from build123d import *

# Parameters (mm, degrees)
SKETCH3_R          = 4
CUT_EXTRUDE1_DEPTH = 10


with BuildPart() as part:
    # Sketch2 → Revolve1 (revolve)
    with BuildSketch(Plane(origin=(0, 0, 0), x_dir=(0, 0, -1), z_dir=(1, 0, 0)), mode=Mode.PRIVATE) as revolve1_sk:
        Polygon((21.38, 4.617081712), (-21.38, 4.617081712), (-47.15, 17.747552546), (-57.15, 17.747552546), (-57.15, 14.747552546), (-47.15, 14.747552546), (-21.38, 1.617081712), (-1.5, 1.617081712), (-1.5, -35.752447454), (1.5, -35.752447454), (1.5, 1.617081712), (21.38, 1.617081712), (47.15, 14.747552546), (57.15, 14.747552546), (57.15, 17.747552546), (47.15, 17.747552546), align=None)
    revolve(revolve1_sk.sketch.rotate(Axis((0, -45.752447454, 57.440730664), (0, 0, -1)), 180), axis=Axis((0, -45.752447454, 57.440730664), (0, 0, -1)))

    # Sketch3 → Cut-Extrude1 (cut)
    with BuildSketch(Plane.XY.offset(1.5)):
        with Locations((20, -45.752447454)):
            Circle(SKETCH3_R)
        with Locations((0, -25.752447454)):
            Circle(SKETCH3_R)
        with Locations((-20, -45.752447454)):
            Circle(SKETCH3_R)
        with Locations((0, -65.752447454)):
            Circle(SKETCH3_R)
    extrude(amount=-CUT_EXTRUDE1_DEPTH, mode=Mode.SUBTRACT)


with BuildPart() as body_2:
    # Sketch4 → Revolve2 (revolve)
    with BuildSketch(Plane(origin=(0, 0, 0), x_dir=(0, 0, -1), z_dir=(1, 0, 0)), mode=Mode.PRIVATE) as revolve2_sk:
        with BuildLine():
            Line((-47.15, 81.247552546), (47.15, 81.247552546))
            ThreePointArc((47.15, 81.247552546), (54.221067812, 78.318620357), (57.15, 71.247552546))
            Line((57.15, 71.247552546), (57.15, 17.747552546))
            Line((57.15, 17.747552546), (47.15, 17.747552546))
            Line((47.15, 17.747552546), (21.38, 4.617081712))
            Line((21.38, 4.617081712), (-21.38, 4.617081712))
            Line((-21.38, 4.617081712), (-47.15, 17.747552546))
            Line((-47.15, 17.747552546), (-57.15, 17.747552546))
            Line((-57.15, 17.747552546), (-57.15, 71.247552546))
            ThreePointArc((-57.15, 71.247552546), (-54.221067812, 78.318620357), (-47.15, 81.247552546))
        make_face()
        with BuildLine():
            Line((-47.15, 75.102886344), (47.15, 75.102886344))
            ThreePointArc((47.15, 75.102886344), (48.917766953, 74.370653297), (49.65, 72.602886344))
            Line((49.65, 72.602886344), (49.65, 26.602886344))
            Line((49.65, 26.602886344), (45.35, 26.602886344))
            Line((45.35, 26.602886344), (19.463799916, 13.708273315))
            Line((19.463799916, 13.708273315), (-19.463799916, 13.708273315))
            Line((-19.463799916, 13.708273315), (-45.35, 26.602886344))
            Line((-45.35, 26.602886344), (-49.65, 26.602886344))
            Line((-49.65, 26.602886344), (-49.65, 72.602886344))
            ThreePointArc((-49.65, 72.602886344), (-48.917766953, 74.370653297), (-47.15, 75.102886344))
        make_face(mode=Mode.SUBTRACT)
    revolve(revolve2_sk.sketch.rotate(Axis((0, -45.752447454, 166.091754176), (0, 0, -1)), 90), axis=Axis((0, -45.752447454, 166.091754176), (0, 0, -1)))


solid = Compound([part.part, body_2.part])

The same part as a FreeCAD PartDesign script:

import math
import FreeCAD as App
import Part
import Sketcher

V = App.Vector
Q = App.Units.Quantity


def add_polygon(sketch, points):
    """Adds a closed chain of lines whose ends are joined by coincident constraints."""
    first, n = sketch.GeometryCount, len(points)
    for a, b in zip(points, points[1:] + points[:1]):
        sketch.addGeometry(Part.LineSegment(App.Vector(*a, 0), App.Vector(*b, 0)), False)
    for i in range(n):
        sketch.addConstraint(Sketcher.Constraint("Coincident", first + i, 2, first + (i + 1) % n, 1))

doc = App.newDocument("Part")
body = doc.addObject("PartDesign::Body", "Body")

# Sketch on YZ plane
sketch1 = body.newObject("Sketcher::SketchObject", "Sketch")
sketch1.AttachmentSupport = (doc.getObject("YZ_Plane"), [""])
sketch1.MapMode = "FlatFace"
add_polygon(sketch1, [(4.617082, -21.38), (4.617082, 21.38), (17.747553, 47.15), (17.747553, 57.15), (14.747553, 57.15), (14.747553, 47.15), (1.617082, 21.38), (1.617082, 1.5), (-35.752447, 1.5), (-35.752447, -1.5), (1.617082, -1.5), (1.617082, -21.38), (14.747553, -47.15), (14.747553, -57.15), (17.747553, -57.15), (17.747553, -47.15)])  # lines 0-15
sketch1.addGeometry(Part.LineSegment(V(-45.752447, 57.15, 0), V(-45.752447, -57.15, 0)), True)  # axis
sketch1.addConstraint(Sketcher.Constraint("Vertical", 0))
sketch1.addConstraint(Sketcher.Constraint("Vertical", 2))
sketch1.addConstraint(Sketcher.Constraint("Horizontal", 3))
sketch1.addConstraint(Sketcher.Constraint("Vertical", 4))
sketch1.addConstraint(Sketcher.Constraint("Vertical", 6))
sketch1.addConstraint(Sketcher.Constraint("Horizontal", 7))
sketch1.addConstraint(Sketcher.Constraint("Vertical", 8))
sketch1.addConstraint(Sketcher.Constraint("Horizontal", 9))
sketch1.addConstraint(Sketcher.Constraint("Vertical", 10))
sketch1.addConstraint(Sketcher.Constraint("Vertical", 12))
sketch1.addConstraint(Sketcher.Constraint("Horizontal", 13))
sketch1.addConstraint(Sketcher.Constraint("Vertical", 14))
sketch1.addConstraint(Sketcher.Constraint("Vertical", 16))
sketch1.addConstraint(Sketcher.Constraint("Symmetric", 6, 2, 9, 2, -1))
sketch1.addConstraint(Sketcher.Constraint("Symmetric", 4, 2, 11, 2, -1))
sketch1.addConstraint(Sketcher.Constraint("Symmetric", 2, 2, 13, 2, -1))
sketch1.addConstraint(Sketcher.Constraint("Parallel", 1, 5))
sketch1.addConstraint(Sketcher.Constraint("Parallel", 11, 15))
sketch1.addConstraint(Sketcher.Constraint("Horizontal", 1, 2, 4, 2))
sketch1.addConstraint(Sketcher.Constraint("Horizontal", 0, 2, 5, 2))
sketch1.addConstraint(Sketcher.Constraint("Horizontal", 11, 2, 14, 2))
sketch1.addConstraint(Sketcher.Constraint("Horizontal", 3, 2, 16, 1))
sketch1.addConstraint(Sketcher.Constraint("Horizontal", 13, 2, 16, 2))
sketch1.addConstraint(Sketcher.Constraint("Equal", 13, 8))
sketch1.addConstraint(Sketcher.Constraint("Equal", 6, 10))
sketch1.addConstraint(Sketcher.Constraint("DistanceX", 3, 2, 3, 1, Q("3 mm")))
sketch1.addConstraint(Sketcher.Constraint("DistanceY", 2, 1, 2, 2, Q("10 mm")))
sketch1.addConstraint(Sketcher.Constraint("Angle", 1, Q("63 deg")))
sketch1.addConstraint(Sketcher.Constraint("DistanceY", 16, 2, 16, 1, Q("114.3 mm")))
sketch1.addConstraint(Sketcher.Constraint("DistanceX", 16, 1, 7, 2, Q("10 mm")))
sketch1.addConstraint(Sketcher.Constraint("DistanceY", 0, 1, 0, 2, Q("42.76 mm")))
sketch1.addConstraint(Sketcher.Constraint("DistanceX", 7, 2, 4, 2, Q("50.5 mm")))
sketch1.addConstraint(Sketcher.Constraint("DistanceX", -1, 1, 0, 2, Q("4.617082 mm")))
revolution = body.newObject("PartDesign::Revolution", "Revolution")
revolution.Profile = sketch1
revolution.ReferenceAxis = (sketch1, ["Axis0"])
revolution.Angle = 360

# Sketch on XY plane
sketch2 = body.newObject("Sketcher::SketchObject", "Sketch001")
sketch2.AttachmentSupport = (doc.getObject("XY_Plane"), [""])
sketch2.MapMode = "FlatFace"
sketch2.AttachmentOffset = App.Placement(V(0, 0, 1.5), App.Rotation())
sketch2.addGeometry(Part.Circle(V(20, -45.752447, 0), V(0, 0, 1), 4), False)
sketch2.addGeometry(Part.Circle(V(0, -25.752447, 0), V(0, 0, 1), 4), False)
sketch2.addGeometry(Part.Circle(V(-20, -45.752447, 0), V(0, 0, 1), 4), False)
sketch2.addGeometry(Part.Circle(V(0, -65.752447, 0), V(0, 0, 1), 4), False)
sketch2.addConstraint(Sketcher.Constraint("Equal", 0, 1))
sketch2.addConstraint(Sketcher.Constraint("Equal", 1, 2))
sketch2.addConstraint(Sketcher.Constraint("Equal", 2, 3))
sketch2.addConstraint(Sketcher.Constraint("Symmetric", 0, 3, 2, 3, -2))
sketch2.addConstraint(Sketcher.Constraint("PointOnObject", 1, 3, -2))
sketch2.addConstraint(Sketcher.Constraint("PointOnObject", 3, 3, -2))
sketch2.addConstraint(Sketcher.Constraint("Diameter", 0, Q("8 mm")))
sketch2.addConstraint(Sketcher.Constraint("DistanceX", -1, 1, 0, 3, Q("20 mm")))
sketch2.addConstraint(Sketcher.Constraint("DistanceY", 0, 3, 1, 3, Q("20 mm")))
sketch2.addConstraint(Sketcher.Constraint("DistanceY", 3, 3, 0, 3, Q("20 mm")))
sketch2.addConstraint(Sketcher.Constraint("DistanceY", 0, 3, -1, 1, Q("45.752447 mm")))
pocket1 = body.newObject("PartDesign::Pocket", "Pocket")
pocket1.Profile = sketch2
pocket1.Length = 10
body2 = doc.addObject("PartDesign::Body", "Body001")

# Sketch on YZ plane
sketch3 = body2.newObject("Sketcher::SketchObject", "Sketch002")
sketch3.AttachmentSupport = (doc.getObject("YZ_Plane001"), [""])
sketch3.MapMode = "FlatFace"
sketch3.addGeometry(Part.LineSegment(V(81.247553, -47.15, 0), V(81.247553, 47.15, 0)), False)
sketch3.addGeometry(Part.ArcOfCircle(Part.Circle(V(71.247553, 47.15, 0), V(0, 0, 1), 10), math.radians(0), math.radians(90)), False)
sketch3.addGeometry(Part.LineSegment(V(71.247553, 57.15, 0), V(17.747553, 57.15, 0)), False)
sketch3.addGeometry(Part.LineSegment(V(17.747553, 57.15, 0), V(17.747553, 47.15, 0)), False)
sketch3.addGeometry(Part.LineSegment(V(17.747553, 47.15, 0), V(4.617082, 21.38, 0)), False)
sketch3.addGeometry(Part.LineSegment(V(4.617082, 21.38, 0), V(4.617082, -21.38, 0)), False)
sketch3.addGeometry(Part.LineSegment(V(4.617082, -21.38, 0), V(17.747553, -47.15, 0)), False)
sketch3.addGeometry(Part.LineSegment(V(17.747553, -47.15, 0), V(17.747553, -57.15, 0)), False)
sketch3.addGeometry(Part.LineSegment(V(17.747553, -57.15, 0), V(71.247553, -57.15, 0)), False)
sketch3.addGeometry(Part.ArcOfCircle(Part.Circle(V(71.247553, -47.15, 0), V(0, 0, 1), 10), math.radians(-90), math.radians(0)), False)
sketch3.addGeometry(Part.LineSegment(V(75.102886, 47.15, 0), V(75.102886, -47.15, 0)), False)
sketch3.addGeometry(Part.ArcOfCircle(Part.Circle(V(72.602886, -47.15, 0), V(0, 0, 1), 2.5), math.radians(-90), math.radians(0)), False)
sketch3.addGeometry(Part.LineSegment(V(72.602886, -49.65, 0), V(26.602886, -49.65, 0)), False)
sketch3.addGeometry(Part.LineSegment(V(26.602886, -49.65, 0), V(26.602886, -45.35, 0)), False)
sketch3.addGeometry(Part.LineSegment(V(26.602886, -45.35, 0), V(13.708273, -19.4638, 0)), False)
sketch3.addGeometry(Part.LineSegment(V(13.708273, -19.4638, 0), V(13.708273, 19.4638, 0)), False)
sketch3.addGeometry(Part.LineSegment(V(13.708273, 19.4638, 0), V(26.602886, 45.35, 0)), False)
sketch3.addGeometry(Part.LineSegment(V(26.602886, 45.35, 0), V(26.602886, 49.65, 0)), False)
sketch3.addGeometry(Part.LineSegment(V(26.602886, 49.65, 0), V(72.602886, 49.65, 0)), False)
sketch3.addGeometry(Part.ArcOfCircle(Part.Circle(V(72.602886, 47.15, 0), V(0, 0, 1), 2.5), math.radians(0), math.radians(90)), False)
sketch3.addGeometry(Part.LineSegment(V(-45.752447, 57.15, 0), V(-45.752447, -57.15, 0)), True)  # axis
sketch3.addConstraint(Sketcher.Constraint("Tangent", 0, 2, 1, 1))
sketch3.addConstraint(Sketcher.Constraint("Tangent", 1, 2, 2, 1))
sketch3.addConstraint(Sketcher.Constraint("Coincident", 2, 2, 3, 1))
sketch3.addConstraint(Sketcher.Constraint("Coincident", 3, 2, 4, 1))
sketch3.addConstraint(Sketcher.Constraint("Coincident", 4, 2, 5, 1))
sketch3.addConstraint(Sketcher.Constraint("Coincident", 5, 2, 6, 1))
sketch3.addConstraint(Sketcher.Constraint("Coincident", 6, 2, 7, 1))
sketch3.addConstraint(Sketcher.Constraint("Coincident", 7, 2, 8, 1))
sketch3.addConstraint(Sketcher.Constraint("Tangent", 8, 2, 9, 1))
sketch3.addConstraint(Sketcher.Constraint("Tangent", 9, 2, 0, 1))
sketch3.addConstraint(Sketcher.Constraint("Tangent", 10, 2, 11, 2))
sketch3.addConstraint(Sketcher.Constraint("Tangent", 11, 1, 12, 1))
sketch3.addConstraint(Sketcher.Constraint("Coincident", 12, 2, 13, 1))
sketch3.addConstraint(Sketcher.Constraint("Coincident", 13, 2, 14, 1))
sketch3.addConstraint(Sketcher.Constraint("Coincident", 14, 2, 15, 1))
sketch3.addConstraint(Sketcher.Constraint("Coincident", 15, 2, 16, 1))
sketch3.addConstraint(Sketcher.Constraint("Coincident", 16, 2, 17, 1))
sketch3.addConstraint(Sketcher.Constraint("Coincident", 17, 2, 18, 1))
sketch3.addConstraint(Sketcher.Constraint("Tangent", 18, 2, 19, 2))
sketch3.addConstraint(Sketcher.Constraint("Tangent", 19, 1, 10, 1))
sketch3.addConstraint(Sketcher.Constraint("Vertical", 0))
sketch3.addConstraint(Sketcher.Constraint("Horizontal", 2))
sketch3.addConstraint(Sketcher.Constraint("Vertical", 3))
sketch3.addConstraint(Sketcher.Constraint("Vertical", 5))
sketch3.addConstraint(Sketcher.Constraint("Vertical", 7))
sketch3.addConstraint(Sketcher.Constraint("Horizontal", 8))
sketch3.addConstraint(Sketcher.Constraint("Vertical", 10))
sketch3.addConstraint(Sketcher.Constraint("Horizontal", 12))
sketch3.addConstraint(Sketcher.Constraint("Vertical", 13))
sketch3.addConstraint(Sketcher.Constraint("Vertical", 15))
sketch3.addConstraint(Sketcher.Constraint("Vertical", 17))
sketch3.addConstraint(Sketcher.Constraint("Horizontal", 18))
sketch3.addConstraint(Sketcher.Constraint("Vertical", 20))
sketch3.addConstraint(Sketcher.Constraint("Equal", 1, 9))
sketch3.addConstraint(Sketcher.Constraint("Equal", 11, 19))
sketch3.addConstraint(Sketcher.Constraint("Symmetric", 3, 2, 6, 2, -1))
sketch3.addConstraint(Sketcher.Constraint("Symmetric", 13, 2, 16, 2, -1))
sketch3.addConstraint(Sketcher.Constraint("Horizontal", 9, 3, 11, 3))
sketch3.addConstraint(Sketcher.Constraint("Horizontal", 1, 3, 19, 3))
sketch3.addConstraint(Sketcher.Constraint("Horizontal", 0, 2, 3, 2))
sketch3.addConstraint(Sketcher.Constraint("Horizontal", 11, 3, 6, 2))
sketch3.addConstraint(Sketcher.Constraint("Horizontal", 2, 2, 20, 1))
sketch3.addConstraint(Sketcher.Constraint("Horizontal", 8, 2, 20, 2))
sketch3.addConstraint(Sketcher.Constraint("Equal", 4, 6))
sketch3.addConstraint(Sketcher.Constraint("Equal", 14, 16))
sketch3.addConstraint(Sketcher.Constraint("Radius", 1, Q("10 mm")))
sketch3.addConstraint(Sketcher.Constraint("Radius", 11, Q("2.5 mm")))
sketch3.addConstraint(Sketcher.Constraint("DistanceX", 12, 2, 12, 1, Q("46 mm")))
sketch3.addConstraint(Sketcher.Constraint("Angle", 4, Q("-117 deg")))
sketch3.addConstraint(Sketcher.Constraint("DistanceX", 2, 2, 2, 1, Q("53.5 mm")))
sketch3.addConstraint(Sketcher.Constraint("DistanceY", 0, 1, 0, 2, Q("94.3 mm")))
sketch3.addConstraint(Sketcher.Constraint("DistanceY", 13, 1, 13, 2, Q("4.3 mm")))
sketch3.addConstraint(Sketcher.Constraint("DistanceY", 5, 2, 5, 1, Q("42.76 mm")))
sketch3.addConstraint(Sketcher.Constraint("DistanceX", 20, 1, 2, 2, Q("63.5 mm")))
sketch3.addConstraint(Sketcher.Constraint("Distance", 14, Q("28.92 mm")))
sketch3.addConstraint(Sketcher.Constraint("DistanceY", 15, 1, 15, 2, Q("38.9276 mm")))
sketch3.addConstraint(Sketcher.Constraint("DistanceX", -1, 1, 4, 2, Q("4.617082 mm")))
sketch3.addConstraint(Sketcher.Constraint("DistanceX", 5, 2, 14, 2, Q("9.091192 mm")))
revolution2 = body2.newObject("PartDesign::Revolution", "Revolution001")
revolution2.Profile = sketch3
revolution2.ReferenceAxis = (sketch3, ["Axis0"])
revolution2.Angle = 360

doc.recompute()
